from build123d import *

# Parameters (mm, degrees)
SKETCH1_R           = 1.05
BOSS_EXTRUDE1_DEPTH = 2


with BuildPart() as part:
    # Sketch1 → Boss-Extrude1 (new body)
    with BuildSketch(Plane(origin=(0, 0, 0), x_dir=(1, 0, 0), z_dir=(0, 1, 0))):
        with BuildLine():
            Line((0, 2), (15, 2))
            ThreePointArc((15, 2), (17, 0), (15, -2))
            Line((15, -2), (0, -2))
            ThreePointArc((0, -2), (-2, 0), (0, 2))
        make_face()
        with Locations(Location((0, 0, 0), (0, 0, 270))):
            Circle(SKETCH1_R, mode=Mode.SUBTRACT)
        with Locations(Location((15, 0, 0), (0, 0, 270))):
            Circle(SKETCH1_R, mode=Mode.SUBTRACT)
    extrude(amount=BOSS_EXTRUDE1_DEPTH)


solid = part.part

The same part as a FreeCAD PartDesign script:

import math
import FreeCAD as App
import Part
import Sketcher

V = App.Vector

doc = App.newDocument("Part")
body = doc.addObject("PartDesign::Body", "Body")

# Sketch on XZ plane
sketch1 = doc.addObject("Sketcher::SketchObject", "Sketch")
body.addObject(sketch1)
sketch1.AttachmentSupport = (doc.XZ_Plane, [""])
sketch1.MapMode = "FlatFace"
sketch1.addGeometry(Part.LineSegment(V(15, -2, 0), V(0, -2, 0)), False)
sketch1.addGeometry(Part.ArcOfCircle(Part.Circle(V(0, 0, 0), V(0, 0, 1), 2), math.radians(90), math.radians(270)), False)
sketch1.addGeometry(Part.LineSegment(V(0, 2, 0), V(15, 2, 0)), False)
sketch1.addGeometry(Part.ArcOfCircle(Part.Circle(V(15, 0, 0), V(0, 0, 1), 2), math.radians(-90), math.radians(90)), False)
sketch1.addGeometry(Part.Circle(V(15, 0, 0), V(0, 0, 1), 1.05), False)
sketch1.addGeometry(Part.Circle(V(0, 0, 0), V(0, 0, 1), 1.05), False)
sketch1.addConstraint(Sketcher.Constraint("Tangent", 0, 2, 1, 2))
sketch1.addConstraint(Sketcher.Constraint("Tangent", 1, 1, 2, 1))
sketch1.addConstraint(Sketcher.Constraint("Tangent", 2, 2, 3, 2))
sketch1.addConstraint(Sketcher.Constraint("Tangent", 3, 1, 0, 1))
sketch1.addConstraint(Sketcher.Constraint("Horizontal", 0))
sketch1.addConstraint(Sketcher.Constraint("Horizontal", 2))
sketch1.addConstraint(Sketcher.Constraint("Coincident", 1, 3, -1, 1))
sketch1.addConstraint(Sketcher.Constraint("Coincident", 5, 3, -1, 1))
sketch1.addConstraint(Sketcher.Constraint("Coincident", 4, 3, 3, 3))
sketch1.addConstraint(Sketcher.Constraint("Equal", 4, 5))
sketch1.addConstraint(Sketcher.Constraint("Radius", 1, 2.0))
sketch1.addConstraint(Sketcher.Constraint("Diameter", 4, 2.1))
sketch1.addConstraint(Sketcher.Constraint("DistanceX", 0, 2, 0, 1, 15.0))
pad1 = doc.addObject("PartDesign::Pad", "Pad")
body.addObject(pad1)
pad1.Profile = sketch1
pad1.Length = 2
pad1.Reversed = True

doc.recompute()
